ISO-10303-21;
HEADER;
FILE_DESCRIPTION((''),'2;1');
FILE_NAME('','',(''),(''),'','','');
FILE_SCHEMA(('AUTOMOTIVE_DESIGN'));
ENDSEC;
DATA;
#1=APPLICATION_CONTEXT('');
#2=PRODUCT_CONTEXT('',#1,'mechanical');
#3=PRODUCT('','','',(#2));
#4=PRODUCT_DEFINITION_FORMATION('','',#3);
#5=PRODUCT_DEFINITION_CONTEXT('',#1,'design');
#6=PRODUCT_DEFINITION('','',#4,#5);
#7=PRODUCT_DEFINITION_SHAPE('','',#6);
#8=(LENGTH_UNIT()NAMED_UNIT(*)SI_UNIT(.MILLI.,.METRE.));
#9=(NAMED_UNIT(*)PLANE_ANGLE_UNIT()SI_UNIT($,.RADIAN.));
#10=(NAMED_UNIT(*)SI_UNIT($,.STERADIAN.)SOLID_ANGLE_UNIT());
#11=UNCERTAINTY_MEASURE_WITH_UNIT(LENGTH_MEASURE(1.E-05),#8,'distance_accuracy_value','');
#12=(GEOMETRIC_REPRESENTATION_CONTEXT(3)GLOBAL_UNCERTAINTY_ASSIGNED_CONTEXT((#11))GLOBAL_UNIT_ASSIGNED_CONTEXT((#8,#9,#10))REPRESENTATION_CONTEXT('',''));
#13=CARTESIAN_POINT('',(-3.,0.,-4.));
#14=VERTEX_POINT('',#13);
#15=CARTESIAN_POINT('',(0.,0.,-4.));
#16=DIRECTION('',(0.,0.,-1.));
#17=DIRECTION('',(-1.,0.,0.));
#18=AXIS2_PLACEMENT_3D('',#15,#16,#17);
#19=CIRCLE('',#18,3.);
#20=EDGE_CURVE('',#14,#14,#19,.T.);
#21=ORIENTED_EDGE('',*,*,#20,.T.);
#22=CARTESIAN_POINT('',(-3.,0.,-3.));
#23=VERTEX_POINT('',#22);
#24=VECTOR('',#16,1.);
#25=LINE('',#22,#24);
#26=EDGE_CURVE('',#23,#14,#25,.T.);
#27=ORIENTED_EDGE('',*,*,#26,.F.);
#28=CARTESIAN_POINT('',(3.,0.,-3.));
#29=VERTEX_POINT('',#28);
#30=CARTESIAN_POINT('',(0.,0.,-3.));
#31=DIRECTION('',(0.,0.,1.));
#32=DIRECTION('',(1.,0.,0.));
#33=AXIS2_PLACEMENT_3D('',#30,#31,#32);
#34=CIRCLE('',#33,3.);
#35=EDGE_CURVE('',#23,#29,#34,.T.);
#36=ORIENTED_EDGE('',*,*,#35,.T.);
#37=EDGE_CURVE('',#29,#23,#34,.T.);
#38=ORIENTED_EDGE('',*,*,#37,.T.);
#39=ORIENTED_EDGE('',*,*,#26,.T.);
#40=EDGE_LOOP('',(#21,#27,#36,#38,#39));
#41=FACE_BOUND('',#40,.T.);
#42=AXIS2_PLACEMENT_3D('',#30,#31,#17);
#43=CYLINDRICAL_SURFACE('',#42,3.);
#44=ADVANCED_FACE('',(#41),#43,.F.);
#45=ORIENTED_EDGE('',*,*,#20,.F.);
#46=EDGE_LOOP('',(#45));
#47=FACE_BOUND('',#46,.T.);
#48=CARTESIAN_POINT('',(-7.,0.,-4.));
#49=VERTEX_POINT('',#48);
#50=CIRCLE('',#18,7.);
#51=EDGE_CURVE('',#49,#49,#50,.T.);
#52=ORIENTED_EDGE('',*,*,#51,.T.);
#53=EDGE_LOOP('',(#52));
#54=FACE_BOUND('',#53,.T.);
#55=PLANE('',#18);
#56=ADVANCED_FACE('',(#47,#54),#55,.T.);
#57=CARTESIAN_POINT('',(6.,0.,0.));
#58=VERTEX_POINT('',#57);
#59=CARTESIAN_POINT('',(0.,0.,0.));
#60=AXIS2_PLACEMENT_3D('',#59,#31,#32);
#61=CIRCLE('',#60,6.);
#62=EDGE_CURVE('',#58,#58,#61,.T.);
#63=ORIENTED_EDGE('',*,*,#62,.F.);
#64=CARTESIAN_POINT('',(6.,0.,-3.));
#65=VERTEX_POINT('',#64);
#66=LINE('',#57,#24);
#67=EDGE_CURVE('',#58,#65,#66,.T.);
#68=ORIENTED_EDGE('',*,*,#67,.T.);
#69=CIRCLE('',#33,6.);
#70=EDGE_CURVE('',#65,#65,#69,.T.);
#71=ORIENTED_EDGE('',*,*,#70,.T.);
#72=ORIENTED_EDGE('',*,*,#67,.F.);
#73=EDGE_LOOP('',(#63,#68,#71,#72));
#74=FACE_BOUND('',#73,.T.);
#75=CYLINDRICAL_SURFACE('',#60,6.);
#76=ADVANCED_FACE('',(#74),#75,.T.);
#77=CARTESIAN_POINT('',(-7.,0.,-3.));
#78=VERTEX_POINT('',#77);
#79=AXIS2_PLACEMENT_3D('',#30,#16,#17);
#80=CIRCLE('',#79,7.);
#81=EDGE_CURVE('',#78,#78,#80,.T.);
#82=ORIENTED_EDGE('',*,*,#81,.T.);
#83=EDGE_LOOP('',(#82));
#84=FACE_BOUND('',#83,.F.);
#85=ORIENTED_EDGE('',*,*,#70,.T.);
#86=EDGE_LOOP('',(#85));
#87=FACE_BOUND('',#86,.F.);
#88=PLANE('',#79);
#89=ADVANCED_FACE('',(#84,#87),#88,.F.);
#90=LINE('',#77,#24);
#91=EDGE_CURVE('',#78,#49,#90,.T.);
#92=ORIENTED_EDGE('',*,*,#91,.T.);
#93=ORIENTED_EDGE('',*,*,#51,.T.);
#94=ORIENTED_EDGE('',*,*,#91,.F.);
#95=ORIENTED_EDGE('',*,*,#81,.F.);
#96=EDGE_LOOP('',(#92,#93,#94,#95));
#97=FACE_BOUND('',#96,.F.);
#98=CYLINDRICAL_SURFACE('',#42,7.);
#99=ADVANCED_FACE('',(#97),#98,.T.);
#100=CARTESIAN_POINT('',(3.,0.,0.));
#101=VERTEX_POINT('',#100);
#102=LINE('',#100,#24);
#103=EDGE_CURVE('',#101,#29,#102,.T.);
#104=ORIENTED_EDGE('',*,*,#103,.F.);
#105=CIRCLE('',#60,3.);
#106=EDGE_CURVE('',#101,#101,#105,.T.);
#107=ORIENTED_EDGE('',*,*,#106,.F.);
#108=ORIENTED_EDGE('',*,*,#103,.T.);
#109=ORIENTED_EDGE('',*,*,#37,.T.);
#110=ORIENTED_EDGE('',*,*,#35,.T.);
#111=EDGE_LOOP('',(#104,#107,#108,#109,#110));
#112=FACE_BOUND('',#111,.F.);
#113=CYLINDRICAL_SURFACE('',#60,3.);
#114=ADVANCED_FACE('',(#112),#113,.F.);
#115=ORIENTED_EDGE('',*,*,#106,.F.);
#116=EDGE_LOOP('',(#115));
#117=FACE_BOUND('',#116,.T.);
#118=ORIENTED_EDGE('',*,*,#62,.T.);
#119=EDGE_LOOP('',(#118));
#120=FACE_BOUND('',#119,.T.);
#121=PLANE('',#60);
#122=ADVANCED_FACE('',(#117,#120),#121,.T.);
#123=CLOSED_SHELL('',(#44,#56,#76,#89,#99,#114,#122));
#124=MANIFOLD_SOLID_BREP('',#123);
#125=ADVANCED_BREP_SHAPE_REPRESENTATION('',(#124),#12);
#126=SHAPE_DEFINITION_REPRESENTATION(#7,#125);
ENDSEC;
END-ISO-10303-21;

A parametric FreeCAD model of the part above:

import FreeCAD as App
import Part
import Sketcher
Q = App.Units.Quantity

doc = App.newDocument("Part")
body = doc.addObject("PartDesign::Body", "Body")

sketch1 = doc.addObject("Sketcher::SketchObject", "Sketch")
body.addObject(sketch1)
sketch1.AttachmentSupport = (doc.XY_Plane, [""])
sketch1.MapMode = "FlatFace"
sketch1.addGeometry([
    Part.Circle(App.Vector(0, 0, 0), App.Vector(0, 0, 1), 6),
    Part.Circle(App.Vector(0, 0, 0), App.Vector(0, 0, 1), 3),
], False)
sketch1.addConstraint([
    Sketcher.Constraint("Coincident", 0, 3, -1, 1),
    Sketcher.Constraint("Coincident", 1, 3, -1, 1),
    Sketcher.Constraint("Diameter", 0, Q("12 mm")),
    Sketcher.Constraint("Diameter", 1, Q("6 mm")),
])
pad1 = doc.addObject("PartDesign::Pad", "Pad")
body.addObject(pad1)
pad1.Profile = sketch1
pad1.Length = 3
pad1.Reversed = True

sketch2 = doc.addObject("Sketcher::SketchObject", "Sketch001")
body.addObject(sketch2)
sketch2.AttachmentSupport = (doc.XY_Plane, [""])
sketch2.MapMode = "FlatFace"
sketch2.AttachmentOffset = App.Placement(App.Vector(0, 0, -3), App.Rotation())
sketch2.addGeometry([
    Part.Circle(App.Vector(0, 0, 0), App.Vector(0, 0, 1), 7),
    Part.Circle(App.Vector(0, 0, 0), App.Vector(0, 0, 1), 3),
], False)
sketch2.addConstraint([
    Sketcher.Constraint("Coincident", 0, 3, -1, 1),
    Sketcher.Constraint("Coincident", 1, 3, -1, 1),
    Sketcher.Constraint("Diameter", 0, Q("14 mm")),
    Sketcher.Constraint("Diameter", 1, Q("6 mm")),
])
pad2 = doc.addObject("PartDesign::Pad", "Pad001")
body.addObject(pad2)
pad2.Profile = sketch2
pad2.Length = 1
pad2.Reversed = True

doc.recompute()
